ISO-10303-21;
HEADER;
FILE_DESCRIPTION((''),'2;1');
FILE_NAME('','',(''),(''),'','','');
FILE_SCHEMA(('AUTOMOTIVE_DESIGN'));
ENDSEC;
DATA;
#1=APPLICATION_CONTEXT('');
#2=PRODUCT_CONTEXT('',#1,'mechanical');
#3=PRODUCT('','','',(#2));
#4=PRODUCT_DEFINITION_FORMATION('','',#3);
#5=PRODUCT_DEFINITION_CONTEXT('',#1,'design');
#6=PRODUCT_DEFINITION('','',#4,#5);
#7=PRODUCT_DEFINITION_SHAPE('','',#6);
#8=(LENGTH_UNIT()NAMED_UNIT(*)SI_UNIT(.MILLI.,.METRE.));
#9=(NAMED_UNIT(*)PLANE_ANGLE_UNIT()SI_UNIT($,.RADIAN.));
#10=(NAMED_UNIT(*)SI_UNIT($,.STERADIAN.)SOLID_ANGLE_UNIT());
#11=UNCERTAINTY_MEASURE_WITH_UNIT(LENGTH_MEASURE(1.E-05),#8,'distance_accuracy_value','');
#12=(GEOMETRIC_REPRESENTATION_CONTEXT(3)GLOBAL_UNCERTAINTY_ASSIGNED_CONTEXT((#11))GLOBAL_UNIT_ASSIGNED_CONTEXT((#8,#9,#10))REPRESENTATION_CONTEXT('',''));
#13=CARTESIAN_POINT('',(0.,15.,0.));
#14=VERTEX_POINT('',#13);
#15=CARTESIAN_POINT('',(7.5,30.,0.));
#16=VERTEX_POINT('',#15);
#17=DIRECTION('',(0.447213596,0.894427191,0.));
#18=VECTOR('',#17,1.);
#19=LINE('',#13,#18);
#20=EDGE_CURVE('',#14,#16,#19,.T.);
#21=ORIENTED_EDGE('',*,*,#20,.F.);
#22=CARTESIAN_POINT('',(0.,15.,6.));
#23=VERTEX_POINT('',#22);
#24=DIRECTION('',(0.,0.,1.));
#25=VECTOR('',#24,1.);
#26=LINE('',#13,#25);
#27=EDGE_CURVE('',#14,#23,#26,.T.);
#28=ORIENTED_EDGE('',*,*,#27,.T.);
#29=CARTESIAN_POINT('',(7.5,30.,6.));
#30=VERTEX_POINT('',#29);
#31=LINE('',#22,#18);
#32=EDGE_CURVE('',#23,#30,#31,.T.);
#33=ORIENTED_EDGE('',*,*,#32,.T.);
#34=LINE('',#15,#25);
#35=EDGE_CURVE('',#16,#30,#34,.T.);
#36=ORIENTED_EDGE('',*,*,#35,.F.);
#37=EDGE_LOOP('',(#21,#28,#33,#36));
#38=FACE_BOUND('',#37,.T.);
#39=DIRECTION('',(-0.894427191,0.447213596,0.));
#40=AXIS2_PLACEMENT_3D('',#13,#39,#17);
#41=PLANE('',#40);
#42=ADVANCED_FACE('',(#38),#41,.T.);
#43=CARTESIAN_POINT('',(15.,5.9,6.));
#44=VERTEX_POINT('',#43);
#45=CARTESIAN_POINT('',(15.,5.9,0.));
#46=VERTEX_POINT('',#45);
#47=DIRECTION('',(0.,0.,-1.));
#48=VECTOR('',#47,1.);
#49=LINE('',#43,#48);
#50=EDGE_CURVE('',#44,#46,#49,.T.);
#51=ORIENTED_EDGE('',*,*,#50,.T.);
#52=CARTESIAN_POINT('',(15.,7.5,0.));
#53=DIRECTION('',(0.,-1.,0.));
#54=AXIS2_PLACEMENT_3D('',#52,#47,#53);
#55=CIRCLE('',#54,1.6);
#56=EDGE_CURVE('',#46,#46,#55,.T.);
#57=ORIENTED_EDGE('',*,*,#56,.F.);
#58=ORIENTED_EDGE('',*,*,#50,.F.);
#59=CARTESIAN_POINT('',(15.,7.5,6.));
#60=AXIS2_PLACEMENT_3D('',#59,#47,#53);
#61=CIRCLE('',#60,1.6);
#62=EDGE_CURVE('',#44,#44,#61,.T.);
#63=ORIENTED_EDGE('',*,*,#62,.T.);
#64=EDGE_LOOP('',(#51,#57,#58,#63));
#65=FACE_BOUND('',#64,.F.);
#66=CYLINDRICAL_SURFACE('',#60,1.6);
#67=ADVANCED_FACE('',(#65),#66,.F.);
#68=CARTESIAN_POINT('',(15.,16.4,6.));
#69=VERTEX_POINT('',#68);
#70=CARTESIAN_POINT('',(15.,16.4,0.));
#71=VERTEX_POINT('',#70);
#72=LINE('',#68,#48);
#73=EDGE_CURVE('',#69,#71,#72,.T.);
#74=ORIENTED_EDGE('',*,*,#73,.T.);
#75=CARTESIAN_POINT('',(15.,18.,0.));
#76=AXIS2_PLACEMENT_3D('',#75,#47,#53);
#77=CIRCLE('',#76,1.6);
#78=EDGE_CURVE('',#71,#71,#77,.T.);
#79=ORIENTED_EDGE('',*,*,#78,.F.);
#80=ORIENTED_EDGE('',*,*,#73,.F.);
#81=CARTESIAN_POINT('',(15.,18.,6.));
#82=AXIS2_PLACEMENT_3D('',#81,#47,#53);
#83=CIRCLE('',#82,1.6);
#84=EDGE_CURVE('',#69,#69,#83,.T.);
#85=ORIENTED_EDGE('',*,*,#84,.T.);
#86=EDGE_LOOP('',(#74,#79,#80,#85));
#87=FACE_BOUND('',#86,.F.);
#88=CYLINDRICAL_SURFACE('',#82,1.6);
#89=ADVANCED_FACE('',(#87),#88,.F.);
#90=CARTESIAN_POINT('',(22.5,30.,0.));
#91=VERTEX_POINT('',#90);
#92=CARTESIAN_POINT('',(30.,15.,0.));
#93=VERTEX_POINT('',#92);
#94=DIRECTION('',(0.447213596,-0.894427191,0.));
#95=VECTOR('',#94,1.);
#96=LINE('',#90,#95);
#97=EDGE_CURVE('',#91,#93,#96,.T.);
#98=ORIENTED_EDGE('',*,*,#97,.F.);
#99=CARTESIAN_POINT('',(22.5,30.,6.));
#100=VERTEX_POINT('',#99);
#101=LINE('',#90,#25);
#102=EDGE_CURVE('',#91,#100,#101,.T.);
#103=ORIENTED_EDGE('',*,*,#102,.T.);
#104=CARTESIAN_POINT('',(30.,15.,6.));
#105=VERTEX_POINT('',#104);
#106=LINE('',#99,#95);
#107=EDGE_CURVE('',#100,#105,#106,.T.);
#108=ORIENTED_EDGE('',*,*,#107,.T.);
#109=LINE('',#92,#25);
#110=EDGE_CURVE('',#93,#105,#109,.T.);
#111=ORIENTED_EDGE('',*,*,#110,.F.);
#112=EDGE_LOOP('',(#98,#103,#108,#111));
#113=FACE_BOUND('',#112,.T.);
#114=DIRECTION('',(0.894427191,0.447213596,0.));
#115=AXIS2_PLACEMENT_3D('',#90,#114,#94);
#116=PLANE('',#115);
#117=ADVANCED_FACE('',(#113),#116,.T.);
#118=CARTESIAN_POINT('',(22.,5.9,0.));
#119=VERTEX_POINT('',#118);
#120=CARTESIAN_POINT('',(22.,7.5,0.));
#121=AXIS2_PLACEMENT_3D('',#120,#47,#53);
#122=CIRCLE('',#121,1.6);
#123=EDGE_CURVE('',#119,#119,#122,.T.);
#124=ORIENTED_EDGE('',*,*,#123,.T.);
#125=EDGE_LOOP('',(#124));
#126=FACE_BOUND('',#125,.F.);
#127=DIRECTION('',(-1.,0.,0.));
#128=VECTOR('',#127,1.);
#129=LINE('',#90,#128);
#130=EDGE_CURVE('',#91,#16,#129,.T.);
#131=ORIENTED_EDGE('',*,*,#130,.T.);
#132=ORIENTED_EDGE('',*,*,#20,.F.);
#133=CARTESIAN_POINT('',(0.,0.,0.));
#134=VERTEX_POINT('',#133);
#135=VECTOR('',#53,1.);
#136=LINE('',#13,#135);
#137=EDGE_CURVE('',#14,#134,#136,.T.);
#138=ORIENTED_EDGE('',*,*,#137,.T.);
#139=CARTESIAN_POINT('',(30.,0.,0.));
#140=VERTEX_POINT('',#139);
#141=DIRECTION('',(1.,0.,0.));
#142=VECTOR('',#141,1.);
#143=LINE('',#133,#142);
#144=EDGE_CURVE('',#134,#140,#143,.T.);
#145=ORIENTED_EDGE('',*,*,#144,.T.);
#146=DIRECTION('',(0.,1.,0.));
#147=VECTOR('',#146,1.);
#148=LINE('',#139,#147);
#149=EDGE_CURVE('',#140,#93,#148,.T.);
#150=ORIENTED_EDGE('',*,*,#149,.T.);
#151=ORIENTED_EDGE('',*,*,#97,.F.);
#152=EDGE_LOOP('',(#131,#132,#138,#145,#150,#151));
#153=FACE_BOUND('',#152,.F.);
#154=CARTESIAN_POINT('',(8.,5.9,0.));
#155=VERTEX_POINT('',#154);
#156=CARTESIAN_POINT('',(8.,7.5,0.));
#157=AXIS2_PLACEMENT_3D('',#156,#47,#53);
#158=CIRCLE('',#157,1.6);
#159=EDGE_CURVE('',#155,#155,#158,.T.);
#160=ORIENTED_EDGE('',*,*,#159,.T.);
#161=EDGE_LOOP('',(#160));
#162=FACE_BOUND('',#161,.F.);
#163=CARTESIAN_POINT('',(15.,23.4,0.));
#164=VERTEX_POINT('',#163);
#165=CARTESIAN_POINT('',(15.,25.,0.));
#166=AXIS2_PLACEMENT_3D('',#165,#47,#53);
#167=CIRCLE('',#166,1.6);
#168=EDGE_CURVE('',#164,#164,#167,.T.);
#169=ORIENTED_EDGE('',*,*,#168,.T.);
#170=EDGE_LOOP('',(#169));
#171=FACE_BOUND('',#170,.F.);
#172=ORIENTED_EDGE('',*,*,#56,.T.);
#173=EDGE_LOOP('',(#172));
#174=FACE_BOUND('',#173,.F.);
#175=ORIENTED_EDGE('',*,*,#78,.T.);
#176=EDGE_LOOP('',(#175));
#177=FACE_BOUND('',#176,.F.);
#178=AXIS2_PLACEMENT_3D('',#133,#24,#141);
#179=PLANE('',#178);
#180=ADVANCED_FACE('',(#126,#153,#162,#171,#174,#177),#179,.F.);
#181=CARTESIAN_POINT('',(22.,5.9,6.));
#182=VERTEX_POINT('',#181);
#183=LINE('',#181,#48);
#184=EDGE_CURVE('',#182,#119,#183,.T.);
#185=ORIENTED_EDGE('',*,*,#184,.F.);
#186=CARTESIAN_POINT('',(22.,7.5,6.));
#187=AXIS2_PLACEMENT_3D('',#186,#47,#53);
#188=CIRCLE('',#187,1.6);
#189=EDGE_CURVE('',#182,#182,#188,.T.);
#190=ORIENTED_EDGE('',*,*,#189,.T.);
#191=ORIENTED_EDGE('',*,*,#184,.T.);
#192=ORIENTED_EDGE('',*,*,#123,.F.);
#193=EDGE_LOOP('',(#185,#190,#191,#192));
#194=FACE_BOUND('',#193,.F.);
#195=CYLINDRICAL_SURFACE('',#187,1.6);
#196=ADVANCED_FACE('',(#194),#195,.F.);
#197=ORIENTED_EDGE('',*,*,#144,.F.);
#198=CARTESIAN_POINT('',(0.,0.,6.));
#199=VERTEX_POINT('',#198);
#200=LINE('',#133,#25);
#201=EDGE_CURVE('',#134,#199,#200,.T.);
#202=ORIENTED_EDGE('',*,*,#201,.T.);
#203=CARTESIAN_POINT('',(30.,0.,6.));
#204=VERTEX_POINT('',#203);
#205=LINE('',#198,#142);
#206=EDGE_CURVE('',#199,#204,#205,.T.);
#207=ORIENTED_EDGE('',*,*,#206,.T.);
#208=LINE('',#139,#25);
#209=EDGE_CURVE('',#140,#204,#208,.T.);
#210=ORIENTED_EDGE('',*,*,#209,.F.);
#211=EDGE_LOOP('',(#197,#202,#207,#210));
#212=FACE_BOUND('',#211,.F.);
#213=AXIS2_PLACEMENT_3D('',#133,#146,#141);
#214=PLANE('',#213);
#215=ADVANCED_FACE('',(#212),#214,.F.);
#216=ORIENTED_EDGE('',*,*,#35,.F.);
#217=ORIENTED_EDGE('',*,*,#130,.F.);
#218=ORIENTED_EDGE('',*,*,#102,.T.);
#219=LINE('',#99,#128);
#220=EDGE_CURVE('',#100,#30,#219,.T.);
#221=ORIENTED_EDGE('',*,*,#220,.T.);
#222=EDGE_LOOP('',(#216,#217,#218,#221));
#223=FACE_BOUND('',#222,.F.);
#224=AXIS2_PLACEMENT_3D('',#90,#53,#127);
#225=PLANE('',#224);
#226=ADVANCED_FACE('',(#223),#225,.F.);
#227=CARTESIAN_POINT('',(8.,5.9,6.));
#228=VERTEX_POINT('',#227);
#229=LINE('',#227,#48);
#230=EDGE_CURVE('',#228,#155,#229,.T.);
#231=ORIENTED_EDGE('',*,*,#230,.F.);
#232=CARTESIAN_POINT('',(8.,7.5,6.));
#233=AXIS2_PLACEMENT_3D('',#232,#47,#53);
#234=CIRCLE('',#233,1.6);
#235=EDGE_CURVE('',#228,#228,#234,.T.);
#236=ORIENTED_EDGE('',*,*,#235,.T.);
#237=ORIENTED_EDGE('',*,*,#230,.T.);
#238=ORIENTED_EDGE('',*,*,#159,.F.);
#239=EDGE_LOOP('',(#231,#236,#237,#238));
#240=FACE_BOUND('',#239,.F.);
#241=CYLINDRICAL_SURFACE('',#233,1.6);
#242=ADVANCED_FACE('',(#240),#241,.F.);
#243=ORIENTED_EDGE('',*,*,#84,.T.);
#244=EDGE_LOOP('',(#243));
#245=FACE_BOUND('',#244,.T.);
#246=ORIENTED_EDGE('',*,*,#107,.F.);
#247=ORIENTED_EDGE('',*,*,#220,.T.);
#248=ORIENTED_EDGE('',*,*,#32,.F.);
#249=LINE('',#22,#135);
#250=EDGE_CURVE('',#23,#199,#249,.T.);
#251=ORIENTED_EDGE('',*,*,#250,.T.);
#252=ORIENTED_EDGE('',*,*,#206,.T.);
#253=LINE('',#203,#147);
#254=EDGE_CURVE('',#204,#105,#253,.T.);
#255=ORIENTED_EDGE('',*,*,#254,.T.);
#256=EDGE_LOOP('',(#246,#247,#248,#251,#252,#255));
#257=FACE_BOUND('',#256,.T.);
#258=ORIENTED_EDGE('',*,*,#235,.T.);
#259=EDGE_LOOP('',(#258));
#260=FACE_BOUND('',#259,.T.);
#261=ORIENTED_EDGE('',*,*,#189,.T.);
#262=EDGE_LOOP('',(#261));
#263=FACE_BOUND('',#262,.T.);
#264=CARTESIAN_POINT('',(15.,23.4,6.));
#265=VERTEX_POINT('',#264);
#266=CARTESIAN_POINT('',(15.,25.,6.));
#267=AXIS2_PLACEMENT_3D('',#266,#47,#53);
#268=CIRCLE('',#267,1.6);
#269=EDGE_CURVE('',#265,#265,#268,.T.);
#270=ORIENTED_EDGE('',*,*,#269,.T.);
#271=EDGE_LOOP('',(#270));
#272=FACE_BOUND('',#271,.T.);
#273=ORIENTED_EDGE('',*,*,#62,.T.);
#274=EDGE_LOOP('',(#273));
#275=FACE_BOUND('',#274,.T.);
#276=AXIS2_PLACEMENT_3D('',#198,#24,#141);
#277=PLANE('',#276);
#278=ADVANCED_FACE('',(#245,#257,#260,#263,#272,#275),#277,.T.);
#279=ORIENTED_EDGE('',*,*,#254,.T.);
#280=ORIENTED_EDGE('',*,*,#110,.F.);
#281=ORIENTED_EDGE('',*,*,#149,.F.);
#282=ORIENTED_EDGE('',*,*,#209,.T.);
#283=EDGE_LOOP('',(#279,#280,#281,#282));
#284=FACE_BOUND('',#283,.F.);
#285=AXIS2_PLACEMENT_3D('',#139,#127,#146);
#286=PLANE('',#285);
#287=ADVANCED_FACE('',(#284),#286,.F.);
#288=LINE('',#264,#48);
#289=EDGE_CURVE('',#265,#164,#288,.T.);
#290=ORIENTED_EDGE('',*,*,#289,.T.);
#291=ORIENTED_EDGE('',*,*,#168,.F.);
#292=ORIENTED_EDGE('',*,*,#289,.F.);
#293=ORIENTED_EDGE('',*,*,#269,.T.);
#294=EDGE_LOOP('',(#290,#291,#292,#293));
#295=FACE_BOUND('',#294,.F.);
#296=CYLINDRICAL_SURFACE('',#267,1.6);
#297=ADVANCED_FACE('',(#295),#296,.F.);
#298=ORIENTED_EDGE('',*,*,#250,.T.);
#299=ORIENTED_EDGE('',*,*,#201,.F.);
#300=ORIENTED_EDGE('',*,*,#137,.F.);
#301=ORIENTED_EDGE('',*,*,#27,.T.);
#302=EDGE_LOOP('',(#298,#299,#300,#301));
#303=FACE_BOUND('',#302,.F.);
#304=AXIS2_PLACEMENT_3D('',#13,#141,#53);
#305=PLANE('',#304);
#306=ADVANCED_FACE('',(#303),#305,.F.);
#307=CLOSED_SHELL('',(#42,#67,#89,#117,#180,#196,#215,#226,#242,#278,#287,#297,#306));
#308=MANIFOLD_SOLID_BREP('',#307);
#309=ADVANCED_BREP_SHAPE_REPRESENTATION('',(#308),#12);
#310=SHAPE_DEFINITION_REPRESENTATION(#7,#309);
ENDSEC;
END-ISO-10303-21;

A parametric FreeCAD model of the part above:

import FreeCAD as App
import Part
import Sketcher
from FreeCAD import Vector
Q = App.Units.Quantity

doc = App.newDocument("Part")
params = doc.addObject("Spreadsheet::Sheet", "Params")
for row, (alias, value) in enumerate([
    ("sketch1_width", "15 mm"),
    ("sketch1_width2", "30 mm"),
    ("pad1_length", "6 mm"),
    ("sketch2_diameter", "3.2 mm"),
    ("hole_diameter", "3.2 mm"),
    ("hole_depth", "6 mm"),
], start=1):
    params.set(f"A{row}", alias)
    params.set(f"B{row}", "=" + value)
    params.setAlias(f"B{row}", alias)

body = doc.addObject("PartDesign::Body", "Body")

# Sketch on XY plane
sketch1 = doc.addObject("Sketcher::SketchObject", "Sketch")
body.addObject(sketch1)
sketch1.AttachmentSupport = (doc.XY_Plane, [""])
sketch1.MapMode = "FlatFace"
sketch1.addGeometry(Part.LineSegment(Vector(0, 15, 0), Vector(0, 0, 0)), False)
sketch1.addGeometry(Part.LineSegment(Vector(0, 0, 0), Vector(30, 0, 0)), False)
sketch1.addGeometry(Part.LineSegment(Vector(30, 0, 0), Vector(30, 15, 0)), False)
sketch1.addGeometry(Part.LineSegment(Vector(30, 15, 0), Vector(22, 30, 0)), False)
sketch1.addGeometry(Part.LineSegment(Vector(22, 30, 0), Vector(8, 30, 0)), False)
sketch1.addGeometry(Part.LineSegment(Vector(8, 30, 0), Vector(0, 15, 0)), False)
sketch1.addConstraint(Sketcher.Constraint("Coincident", 0, 2, 1, 1))
sketch1.addConstraint(Sketcher.Constraint("Coincident", 1, 2, 2, 1))
sketch1.addConstraint(Sketcher.Constraint("Coincident", 2, 2, 3, 1))
sketch1.addConstraint(Sketcher.Constraint("Coincident", 3, 2, 4, 1))
sketch1.addConstraint(Sketcher.Constraint("Coincident", 4, 2, 5, 1))
sketch1.addConstraint(Sketcher.Constraint("Coincident", 5, 2, 0, 1))
sketch1.addConstraint(Sketcher.Constraint("Vertical", 0))
sketch1.addConstraint(Sketcher.Constraint("Horizontal", 1))
sketch1.addConstraint(Sketcher.Constraint("Vertical", 2))
sketch1.addConstraint(Sketcher.Constraint("Horizontal", 4))
sketch1.addConstraint(Sketcher.Constraint("Coincident", 0, 2, -1, 1))
sketch1.addConstraint(Sketcher.Constraint("Horizontal", 2, 2, 5, 2))
sketch1.addConstraint(Sketcher.Constraint("Equal", 4, 0))
sketch1.addConstraint(Sketcher.Constraint("Equal", 3, 5))
sketch1.addConstraint(Sketcher.Constraint("DistanceX", 4, 2, 4, 1, Q("15 mm")))
sketch1.addConstraint(Sketcher.Constraint("DistanceY", 2, 2, 3, 2, Q("15 mm")))
sketch1.addConstraint(Sketcher.Constraint("DistanceX", 1, 1, 1, 2, Q("30 mm")))
sketch1.setExpression("Constraints[14]", "Params.sketch1_width")
sketch1.setExpression("Constraints[16]", "Params.sketch1_width2")
pad1 = doc.addObject("PartDesign::Pad", "Pad")
body.addObject(pad1)
pad1.Profile = sketch1
pad1.setExpression("Length", "Params.pad1_length")

# Sketch on XY plane
sketch2 = doc.addObject("Sketcher::SketchObject", "Sketch001")
body.addObject(sketch2)
sketch2.AttachmentSupport = (doc.XY_Plane, [""])
sketch2.MapMode = "FlatFace"
sketch2.AttachmentOffset = App.Placement(Vector(0, 0, 6), App.Rotation())
sketch2.addGeometry(Part.Circle(Vector(15, 18, 0), Vector(0, 0, 1), 1.6), False)
sketch2.addGeometry(Part.Circle(Vector(15, 25, 0), Vector(0, 0, 1), 1.6), False)
sketch2.addGeometry(Part.Circle(Vector(8, 7.5, 0), Vector(0, 0, 1), 1.6), False)
sketch2.addGeometry(Part.Circle(Vector(15, 7.5, 0), Vector(0, 0, 1), 1.6), False)
sketch2.addGeometry(Part.Circle(Vector(22, 7.5, 0), Vector(0, 0, 1), 1.6), False)
sketch2.addConstraint(Sketcher.Constraint("Equal", 0, 1))
sketch2.addConstraint(Sketcher.Constraint("Equal", 1, 2))
sketch2.addConstraint(Sketcher.Constraint("Equal", 2, 3))
sketch2.addConstraint(Sketcher.Constraint("Equal", 3, 4))
sketch2.addConstraint(Sketcher.Constraint("Horizontal", 2, 3, 3, 3))
sketch2.addConstraint(Sketcher.Constraint("Horizontal", 3, 3, 4, 3))
sketch2.addConstraint(Sketcher.Constraint("Vertical", 0, 3, 1, 3))
sketch2.addConstraint(Sketcher.Constraint("Vertical", 1, 3, 3, 3))
sketch2.addConstraint(Sketcher.Constraint("Diameter", 0, Q("3.2 mm")))
sketch2.addConstraint(Sketcher.Constraint("DistanceX", -1, 1, 0, 3, Q("15 mm")))
sketch2.addConstraint(Sketcher.Constraint("DistanceY", -1, 1, 0, 3, Q("18 mm")))
sketch2.addConstraint(Sketcher.Constraint("DistanceY", -1, 1, 1, 3, Q("25 mm")))
sketch2.addConstraint(Sketcher.Constraint("DistanceX", -1, 1, 2, 3, Q("8 mm")))
sketch2.addConstraint(Sketcher.Constraint("DistanceX", -1, 1, 4, 3, Q("22 mm")))
sketch2.addConstraint(Sketcher.Constraint("DistanceY", -1, 1, 2, 3, Q("7.5 mm")))
sketch2.setExpression("Constraints[8]", "Params.sketch2_diameter")
doc.recompute()
hole = doc.addObject("PartDesign::Hole", "Hole")
body.addObject(hole)
hole.Profile = sketch2
hole.ThreadType = "None"
hole.setExpression("Diameter", "Params.hole_diameter")
hole.DepthType = "Dimension"
hole.setExpression("Depth", "Params.hole_depth")
hole.DrillPoint = "Flat"

doc.recompute()
